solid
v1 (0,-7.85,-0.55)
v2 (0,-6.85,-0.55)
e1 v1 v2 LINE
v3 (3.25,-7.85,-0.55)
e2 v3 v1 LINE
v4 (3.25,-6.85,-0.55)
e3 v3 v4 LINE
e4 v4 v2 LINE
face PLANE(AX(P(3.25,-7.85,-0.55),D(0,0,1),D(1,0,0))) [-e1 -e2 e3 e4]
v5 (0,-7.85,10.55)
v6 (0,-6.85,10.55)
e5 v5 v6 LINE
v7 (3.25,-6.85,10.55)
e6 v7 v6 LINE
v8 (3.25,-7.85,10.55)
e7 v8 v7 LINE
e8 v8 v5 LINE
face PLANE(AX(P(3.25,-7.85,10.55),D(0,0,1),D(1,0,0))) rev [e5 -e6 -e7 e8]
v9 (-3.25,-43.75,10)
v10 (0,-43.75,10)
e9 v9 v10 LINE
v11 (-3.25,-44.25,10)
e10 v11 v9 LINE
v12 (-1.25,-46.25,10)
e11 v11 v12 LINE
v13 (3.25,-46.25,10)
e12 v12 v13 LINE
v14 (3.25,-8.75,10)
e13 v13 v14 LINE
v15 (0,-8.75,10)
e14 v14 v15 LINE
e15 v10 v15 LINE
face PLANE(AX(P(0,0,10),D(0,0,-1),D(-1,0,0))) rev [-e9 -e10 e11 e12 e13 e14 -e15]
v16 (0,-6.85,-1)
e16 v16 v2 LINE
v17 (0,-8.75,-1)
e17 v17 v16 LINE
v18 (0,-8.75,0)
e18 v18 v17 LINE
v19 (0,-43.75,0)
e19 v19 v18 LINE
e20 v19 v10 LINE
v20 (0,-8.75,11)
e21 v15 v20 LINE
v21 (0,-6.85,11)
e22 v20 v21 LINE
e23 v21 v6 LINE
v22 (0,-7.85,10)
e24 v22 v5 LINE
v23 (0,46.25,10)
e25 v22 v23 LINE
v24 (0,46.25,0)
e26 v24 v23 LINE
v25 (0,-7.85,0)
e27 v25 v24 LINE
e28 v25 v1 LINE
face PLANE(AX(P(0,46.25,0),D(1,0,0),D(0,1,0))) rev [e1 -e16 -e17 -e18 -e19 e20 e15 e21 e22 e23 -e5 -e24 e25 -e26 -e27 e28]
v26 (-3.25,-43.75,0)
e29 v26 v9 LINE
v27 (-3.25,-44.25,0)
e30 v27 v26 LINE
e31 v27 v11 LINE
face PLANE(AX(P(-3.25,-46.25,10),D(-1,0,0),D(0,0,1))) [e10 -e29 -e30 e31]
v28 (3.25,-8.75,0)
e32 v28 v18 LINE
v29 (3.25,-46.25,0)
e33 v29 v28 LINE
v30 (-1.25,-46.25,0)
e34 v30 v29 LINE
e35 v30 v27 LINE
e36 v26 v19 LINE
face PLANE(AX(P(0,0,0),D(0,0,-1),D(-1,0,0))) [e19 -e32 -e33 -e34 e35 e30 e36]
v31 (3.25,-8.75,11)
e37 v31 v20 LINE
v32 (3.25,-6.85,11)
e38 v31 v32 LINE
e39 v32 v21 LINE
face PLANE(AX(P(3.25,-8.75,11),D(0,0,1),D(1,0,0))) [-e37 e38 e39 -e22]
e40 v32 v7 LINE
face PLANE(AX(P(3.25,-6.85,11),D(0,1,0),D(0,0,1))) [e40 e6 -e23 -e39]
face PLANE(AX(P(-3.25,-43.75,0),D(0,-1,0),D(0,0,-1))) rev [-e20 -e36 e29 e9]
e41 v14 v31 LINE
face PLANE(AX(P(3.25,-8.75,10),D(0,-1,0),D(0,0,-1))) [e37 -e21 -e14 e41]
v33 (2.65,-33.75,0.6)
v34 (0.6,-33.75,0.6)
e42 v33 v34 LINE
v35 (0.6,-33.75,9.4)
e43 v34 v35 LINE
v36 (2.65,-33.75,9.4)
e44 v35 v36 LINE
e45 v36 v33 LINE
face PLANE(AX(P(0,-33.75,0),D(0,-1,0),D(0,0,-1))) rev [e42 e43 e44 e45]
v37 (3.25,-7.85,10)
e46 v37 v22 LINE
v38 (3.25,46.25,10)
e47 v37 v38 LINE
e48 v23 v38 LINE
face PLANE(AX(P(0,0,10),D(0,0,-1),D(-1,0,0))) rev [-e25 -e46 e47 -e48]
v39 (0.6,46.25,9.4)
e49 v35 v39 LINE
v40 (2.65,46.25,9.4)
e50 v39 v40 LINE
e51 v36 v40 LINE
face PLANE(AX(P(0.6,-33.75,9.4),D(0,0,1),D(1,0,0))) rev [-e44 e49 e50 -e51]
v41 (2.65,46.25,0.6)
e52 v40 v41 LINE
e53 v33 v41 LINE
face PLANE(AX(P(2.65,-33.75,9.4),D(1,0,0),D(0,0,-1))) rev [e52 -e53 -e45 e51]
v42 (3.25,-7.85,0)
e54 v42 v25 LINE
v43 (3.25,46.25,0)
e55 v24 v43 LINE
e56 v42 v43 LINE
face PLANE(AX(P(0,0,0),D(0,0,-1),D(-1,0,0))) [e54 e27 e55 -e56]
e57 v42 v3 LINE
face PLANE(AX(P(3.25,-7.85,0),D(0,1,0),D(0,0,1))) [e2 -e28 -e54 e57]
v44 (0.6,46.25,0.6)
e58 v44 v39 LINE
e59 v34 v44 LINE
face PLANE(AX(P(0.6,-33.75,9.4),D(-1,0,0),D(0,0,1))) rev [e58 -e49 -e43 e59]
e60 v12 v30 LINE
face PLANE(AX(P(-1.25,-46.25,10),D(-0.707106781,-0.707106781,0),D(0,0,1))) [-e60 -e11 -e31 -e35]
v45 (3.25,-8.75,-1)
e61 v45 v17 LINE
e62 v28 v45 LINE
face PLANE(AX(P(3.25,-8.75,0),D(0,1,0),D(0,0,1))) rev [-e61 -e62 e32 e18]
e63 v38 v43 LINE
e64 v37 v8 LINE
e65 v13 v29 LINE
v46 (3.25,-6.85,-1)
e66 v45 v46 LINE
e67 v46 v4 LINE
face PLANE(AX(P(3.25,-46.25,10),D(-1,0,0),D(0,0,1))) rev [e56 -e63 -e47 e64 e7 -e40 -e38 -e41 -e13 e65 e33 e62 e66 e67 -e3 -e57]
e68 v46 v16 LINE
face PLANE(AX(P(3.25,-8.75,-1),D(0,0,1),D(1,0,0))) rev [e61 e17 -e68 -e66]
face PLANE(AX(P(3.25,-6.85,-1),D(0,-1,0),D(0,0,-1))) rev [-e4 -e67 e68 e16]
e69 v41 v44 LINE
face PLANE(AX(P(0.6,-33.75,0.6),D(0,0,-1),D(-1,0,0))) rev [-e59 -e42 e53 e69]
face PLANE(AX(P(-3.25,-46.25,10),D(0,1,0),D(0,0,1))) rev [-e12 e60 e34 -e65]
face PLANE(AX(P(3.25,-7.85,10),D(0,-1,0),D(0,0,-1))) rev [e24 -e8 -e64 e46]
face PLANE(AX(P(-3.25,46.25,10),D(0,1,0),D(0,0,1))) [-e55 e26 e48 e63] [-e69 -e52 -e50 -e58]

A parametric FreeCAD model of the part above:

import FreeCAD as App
import Part
import Sketcher
from FreeCAD import Vector


def edges_at(feature, points):
    """Names of the edges that pass closest to the given points."""
    edges = feature.Shape.Edges
    near = lambda p: min(range(len(edges)), key=lambda i: edges[i].distToShape(Part.Vertex(*p))[0])
    return sorted({f"Edge{near(p) + 1}" for p in points})

doc = App.newDocument("Part")
body = doc.addObject("PartDesign::Body", "Body")

# Sketch on XY plane
sketch1 = doc.addObject("Sketcher::SketchObject", "Sketch")
body.addObject(sketch1)
sketch1.AttachmentSupport = (doc.XY_Plane, [""])
sketch1.MapMode = "FlatFace"
sketch1.addGeometry([
    Part.LineSegment(Vector(-3, 46, 0), Vector(-3, -46, 0)),
    Part.LineSegment(Vector(-3, -46, 0), Vector(3, -46, 0)),
    Part.LineSegment(Vector(3, -46, 0), Vector(3, 46, 0)),
    Part.LineSegment(Vector(3, 46, 0), Vector(-3, 46, 0)),
], False)
sketch1.addConstraint([
    Sketcher.Constraint("Coincident", 0, 2, 1, 1),
    Sketcher.Constraint("Coincident", 1, 2, 2, 1),
    Sketcher.Constraint("Coincident", 2, 2, 3, 1),
    Sketcher.Constraint("Coincident", 3, 2, 0, 1),
    Sketcher.Constraint("Vertical", 0),
    Sketcher.Constraint("Horizontal", 1),
    Sketcher.Constraint("Vertical", 2),
    Sketcher.Constraint("Horizontal", 3),
    Sketcher.Constraint("Symmetric", 0, 2, 2, 2, -1, 1),
    Sketcher.Constraint("DistanceX", 1, 1, 1, 2, 6.5),
    Sketcher.Constraint("DistanceY", 0, 2, 0, 1, 92.5),
])
pad1 = doc.addObject("PartDesign::Pad", "Pad")
body.addObject(pad1)
pad1.Profile = sketch1
pad1.Length = 10

# Sketch on XY plane
sketch2 = doc.addObject("Sketcher::SketchObject", "Sketch001")
body.addObject(sketch2)
sketch2.AttachmentSupport = (doc.XY_Plane, [""])
sketch2.MapMode = "FlatFace"
sketch2.AttachmentOffset = App.Placement(Vector(0, 0, 10), App.Rotation())
sketch2.addGeometry([
    Part.LineSegment(Vector(-3.2, 46.2, 0), Vector(-3.2, -43.8, 0)),
    Part.LineSegment(Vector(-3.2, -43.8, 0), Vector(0, -43.8, 0)),
    Part.LineSegment(Vector(0, -43.8, 0), Vector(0, 46.2, 0)),
    Part.LineSegment(Vector(0, 46.2, 0), Vector(-3.2, 46.2, 0)),
], False)
sketch2.addConstraint([
    Sketcher.Constraint("Coincident", 0, 2, 1, 1),
    Sketcher.Constraint("Coincident", 1, 2, 2, 1),
    Sketcher.Constraint("Coincident", 2, 2, 3, 1),
    Sketcher.Constraint("Coincident", 3, 2, 0, 1),
    Sketcher.Constraint("Vertical", 0),
    Sketcher.Constraint("Horizontal", 1),
    Sketcher.Constraint("Vertical", 2),
    Sketcher.Constraint("Horizontal", 3),
    Sketcher.Constraint("PointOnObject", 1, 2, -2),
    Sketcher.Constraint("DistanceY", 0, 2, 0, 1, 90.0),
    Sketcher.Constraint("DistanceX", 1, 1, 1, 2, 3.25),
    Sketcher.Constraint("DistanceY", 0, 2, -1, 1, 43.75),
])
pocket1 = doc.addObject("PartDesign::Pocket", "Pocket")
body.addObject(pocket1)
pocket1.Profile = sketch2
pocket1.Length = 10
doc.recompute()

chamfer = doc.addObject("PartDesign::Chamfer", "Chamfer")
body.addObject(chamfer)
chamfer.Base = (pocket1, edges_at(pocket1, [(-3.25, -46.25, 5)]))
chamfer.Size = 2

# Sketch on YZ plane
sketch3 = doc.addObject("Sketcher::SketchObject", "Sketch002")
body.addObject(sketch3)
sketch3.AttachmentSupport = (doc.YZ_Plane, [""])
sketch3.MapMode = "FlatFace"
sketch3.addGeometry([
    Part.LineSegment(Vector(-8.75, 10, 0), Vector(-8.75, 11, 0)),  # 0
    Part.LineSegment(Vector(-8.75, 11, 0), Vector(-6.85, 11, 0)),  # 1
    Part.LineSegment(Vector(-6.85, 11, 0), Vector(-6.85, 10.55, 0)),  # 2
    Part.LineSegment(Vector(-6.85, 10.55, 0), Vector(-7.85, 10.55, 0)),  # 3
    Part.LineSegment(Vector(-7.85, 10.55, 0), Vector(-7.85, 10, 0)),  # 4
    Part.LineSegment(Vector(-7.85, 10, 0), Vector(-8.75, 10, 0)),  # 5
], False)
sketch3.addConstraint([
    Sketcher.Constraint("Coincident", 0, 2, 1, 1),
    Sketcher.Constraint("Coincident", 1, 2, 2, 1),
    Sketcher.Constraint("Coincident", 2, 2, 3, 1),
    Sketcher.Constraint("Coincident", 3, 2, 4, 1),
    Sketcher.Constraint("Coincident", 4, 2, 5, 1),
    Sketcher.Constraint("Coincident", 5, 2, 0, 1),
    Sketcher.Constraint("Vertical", 0),
    Sketcher.Constraint("Horizontal", 1),
    Sketcher.Constraint("Vertical", 2),
    Sketcher.Constraint("Horizontal", 3),
    Sketcher.Constraint("Vertical", 4),
    Sketcher.Constraint("Horizontal", 5),
    Sketcher.Constraint("Equal", 3, 0),
    Sketcher.Constraint("DistanceX", 3, 2, 3, 1, 1.0),
    Sketcher.Constraint("DistanceX", 1, 1, 1, 2, 1.9),
    Sketcher.Constraint("DistanceY", -1, 1, 0, 2, 11.0),
    Sketcher.Constraint("DistanceY", 2, 2, 2, 1, 0.45),
    Sketcher.Constraint("DistanceX", 0, 2, -1, 1, 8.75),
])
pad2 = doc.addObject("PartDesign::Pad", "Pad001")
body.addObject(pad2)
pad2.Profile = sketch3
pad2.Length = 3.25
doc.recompute()

datumplane = doc.addObject("PartDesign::Plane", "DatumPlane")
body.addObject(datumplane)
datumplane.AttachmentSupport = (doc.XY_Plane, [""])
datumplane.MapMode = "FlatFace"
datumplane.AttachmentOffset = App.Placement(Vector(0, 0, 5), App.Rotation())
mirrored = doc.addObject("PartDesign::Mirrored", "Mirrored")
body.addObject(mirrored)
mirrored.Originals = [pad2]
mirrored.MirrorPlane = (datumplane, [""])
body.Tip = mirrored

# Sketch on XZ plane
sketch4 = doc.addObject("Sketcher::SketchObject", "Sketch003")
body.addObject(sketch4)
sketch4.AttachmentSupport = (doc.XZ_Plane, [""])
sketch4.MapMode = "FlatFace"
sketch4.AttachmentOffset = App.Placement(Vector(0, 0, -46.25), App.Rotation())
sketch4.addGeometry([
    Part.LineSegment(Vector(0.6, 0.6, 0), Vector(0.6, 9.4, 0)),
    Part.LineSegment(Vector(0.6, 9.4, 0), Vector(2.6, 9.4, 0)),
    Part.LineSegment(Vector(2.6, 9.4, 0), Vector(2.6, 0.6, 0)),
    Part.LineSegment(Vector(2.6, 0.6, 0), Vector(0.6, 0.6, 0)),
], False)
sketch4.addConstraint([
    Sketcher.Constraint("Coincident", 0, 2, 1, 1),
    Sketcher.Constraint("Coincident", 1, 2, 2, 1),
    Sketcher.Constraint("Coincident", 2, 2, 3, 1),
    Sketcher.Constraint("Coincident", 3, 2, 0, 1),
    Sketcher.Constraint("Vertical", 0),
    Sketcher.Constraint("Horizontal", 1),
    Sketcher.Constraint("Vertical", 2),
    Sketcher.Constraint("Horizontal", 3),
    Sketcher.Constraint("DistanceY", 0, 1, 0, 2, 8.8),
    Sketcher.Constraint("DistanceX", 1, 1, 1, 2, 2.05),
    Sketcher.Constraint("DistanceX", -1, 1, 0, 2, 0.6),
    Sketcher.Constraint("DistanceY", -1, 1, 0, 2, 9.4),
])
pocket2 = doc.addObject("PartDesign::Pocket", "Pocket001")
body.addObject(pocket2)
pocket2.Profile = sketch4
pocket2.Length = 80
pocket2.Reversed = True

doc.recompute()
